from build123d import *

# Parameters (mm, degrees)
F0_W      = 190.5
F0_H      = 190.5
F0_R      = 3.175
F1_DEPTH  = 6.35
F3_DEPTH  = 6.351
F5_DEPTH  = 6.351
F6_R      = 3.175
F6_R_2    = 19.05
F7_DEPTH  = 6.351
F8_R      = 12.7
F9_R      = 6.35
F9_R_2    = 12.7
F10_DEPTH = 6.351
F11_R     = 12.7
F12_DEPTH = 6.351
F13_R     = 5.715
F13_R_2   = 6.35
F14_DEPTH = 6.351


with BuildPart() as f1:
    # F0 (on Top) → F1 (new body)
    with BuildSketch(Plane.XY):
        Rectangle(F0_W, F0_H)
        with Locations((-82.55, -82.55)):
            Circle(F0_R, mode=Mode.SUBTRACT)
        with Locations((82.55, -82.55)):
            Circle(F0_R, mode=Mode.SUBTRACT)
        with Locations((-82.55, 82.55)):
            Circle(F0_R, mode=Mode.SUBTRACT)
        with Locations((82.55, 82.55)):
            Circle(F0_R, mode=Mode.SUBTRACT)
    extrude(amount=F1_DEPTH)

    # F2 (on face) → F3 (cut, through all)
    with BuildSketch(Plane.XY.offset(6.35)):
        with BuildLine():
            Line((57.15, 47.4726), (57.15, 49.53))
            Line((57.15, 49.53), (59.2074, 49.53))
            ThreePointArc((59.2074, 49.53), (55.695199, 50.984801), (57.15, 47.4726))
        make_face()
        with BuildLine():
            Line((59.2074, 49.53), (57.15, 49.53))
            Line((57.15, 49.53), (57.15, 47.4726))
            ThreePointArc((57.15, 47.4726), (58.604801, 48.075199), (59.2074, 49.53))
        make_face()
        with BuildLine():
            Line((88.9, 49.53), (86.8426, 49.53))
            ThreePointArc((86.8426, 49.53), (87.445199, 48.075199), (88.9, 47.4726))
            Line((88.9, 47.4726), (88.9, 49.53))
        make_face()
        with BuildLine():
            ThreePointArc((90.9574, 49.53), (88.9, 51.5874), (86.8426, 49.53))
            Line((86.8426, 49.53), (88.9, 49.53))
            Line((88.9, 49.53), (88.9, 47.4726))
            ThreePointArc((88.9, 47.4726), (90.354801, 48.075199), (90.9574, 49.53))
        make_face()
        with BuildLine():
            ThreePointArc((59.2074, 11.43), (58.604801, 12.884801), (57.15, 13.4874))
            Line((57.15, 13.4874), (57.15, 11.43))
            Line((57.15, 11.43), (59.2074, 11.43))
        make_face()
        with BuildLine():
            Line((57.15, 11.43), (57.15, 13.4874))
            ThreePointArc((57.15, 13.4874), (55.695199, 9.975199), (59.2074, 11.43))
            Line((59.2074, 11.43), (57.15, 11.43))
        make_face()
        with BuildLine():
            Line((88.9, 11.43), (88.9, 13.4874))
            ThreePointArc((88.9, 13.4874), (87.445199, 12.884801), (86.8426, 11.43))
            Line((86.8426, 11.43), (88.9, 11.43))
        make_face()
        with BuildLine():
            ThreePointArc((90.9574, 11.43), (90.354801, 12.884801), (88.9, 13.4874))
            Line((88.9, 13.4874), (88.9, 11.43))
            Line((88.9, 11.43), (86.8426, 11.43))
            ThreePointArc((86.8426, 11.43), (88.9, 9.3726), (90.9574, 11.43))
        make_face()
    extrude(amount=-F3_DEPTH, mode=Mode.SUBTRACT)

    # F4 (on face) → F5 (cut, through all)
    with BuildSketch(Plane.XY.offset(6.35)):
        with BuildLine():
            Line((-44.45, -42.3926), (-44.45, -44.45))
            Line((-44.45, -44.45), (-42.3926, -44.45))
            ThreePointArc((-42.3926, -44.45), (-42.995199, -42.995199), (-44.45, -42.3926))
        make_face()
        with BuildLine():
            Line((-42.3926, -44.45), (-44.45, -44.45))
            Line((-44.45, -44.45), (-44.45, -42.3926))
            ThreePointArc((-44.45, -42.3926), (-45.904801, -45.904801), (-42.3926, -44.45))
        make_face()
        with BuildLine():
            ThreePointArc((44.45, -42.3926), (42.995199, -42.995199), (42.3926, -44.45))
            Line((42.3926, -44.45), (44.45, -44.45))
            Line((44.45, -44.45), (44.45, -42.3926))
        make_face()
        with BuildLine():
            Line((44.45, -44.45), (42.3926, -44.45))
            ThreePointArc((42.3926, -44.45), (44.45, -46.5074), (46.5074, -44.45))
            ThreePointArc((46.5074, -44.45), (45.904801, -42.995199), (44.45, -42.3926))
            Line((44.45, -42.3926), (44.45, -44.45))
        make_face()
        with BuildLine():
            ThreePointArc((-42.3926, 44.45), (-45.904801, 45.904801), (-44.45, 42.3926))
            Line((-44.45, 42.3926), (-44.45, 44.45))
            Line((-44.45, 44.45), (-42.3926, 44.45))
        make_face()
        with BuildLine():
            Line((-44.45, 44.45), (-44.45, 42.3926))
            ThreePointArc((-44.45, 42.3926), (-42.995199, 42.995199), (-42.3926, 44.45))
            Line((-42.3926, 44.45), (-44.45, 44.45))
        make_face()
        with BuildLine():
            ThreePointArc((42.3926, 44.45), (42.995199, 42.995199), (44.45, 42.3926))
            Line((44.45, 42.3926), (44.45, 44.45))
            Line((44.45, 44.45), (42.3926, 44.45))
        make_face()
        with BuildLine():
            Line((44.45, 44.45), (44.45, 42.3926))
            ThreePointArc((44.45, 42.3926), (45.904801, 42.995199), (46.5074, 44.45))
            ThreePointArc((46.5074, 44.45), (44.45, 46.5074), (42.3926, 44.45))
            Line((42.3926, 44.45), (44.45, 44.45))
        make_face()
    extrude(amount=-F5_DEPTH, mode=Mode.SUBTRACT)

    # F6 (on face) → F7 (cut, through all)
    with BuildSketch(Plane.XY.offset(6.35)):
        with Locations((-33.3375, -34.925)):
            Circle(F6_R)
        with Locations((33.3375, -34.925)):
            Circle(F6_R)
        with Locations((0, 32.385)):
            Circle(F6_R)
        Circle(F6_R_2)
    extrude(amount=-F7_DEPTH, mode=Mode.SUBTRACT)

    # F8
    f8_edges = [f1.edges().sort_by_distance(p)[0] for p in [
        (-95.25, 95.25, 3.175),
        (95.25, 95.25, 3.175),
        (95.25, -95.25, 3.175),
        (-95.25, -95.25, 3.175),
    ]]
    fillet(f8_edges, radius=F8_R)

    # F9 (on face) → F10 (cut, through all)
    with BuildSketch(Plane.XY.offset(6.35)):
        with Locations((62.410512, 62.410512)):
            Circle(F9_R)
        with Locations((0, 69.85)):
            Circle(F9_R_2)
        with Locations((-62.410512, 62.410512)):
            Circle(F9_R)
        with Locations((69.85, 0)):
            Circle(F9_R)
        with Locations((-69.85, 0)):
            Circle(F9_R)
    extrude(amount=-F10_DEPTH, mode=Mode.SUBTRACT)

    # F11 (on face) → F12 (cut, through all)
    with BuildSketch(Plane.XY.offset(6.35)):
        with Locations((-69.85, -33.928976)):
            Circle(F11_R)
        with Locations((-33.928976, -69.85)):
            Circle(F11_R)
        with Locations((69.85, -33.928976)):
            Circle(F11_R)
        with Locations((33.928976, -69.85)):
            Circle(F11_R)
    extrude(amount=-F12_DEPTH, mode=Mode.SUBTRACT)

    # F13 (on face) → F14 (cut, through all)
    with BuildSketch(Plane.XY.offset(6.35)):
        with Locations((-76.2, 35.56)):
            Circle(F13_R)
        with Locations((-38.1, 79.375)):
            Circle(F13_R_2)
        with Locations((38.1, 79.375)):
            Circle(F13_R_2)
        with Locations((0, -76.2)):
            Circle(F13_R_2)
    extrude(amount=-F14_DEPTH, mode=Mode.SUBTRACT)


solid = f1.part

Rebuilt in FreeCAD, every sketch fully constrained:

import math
import FreeCAD as App
import Part
import Sketcher
from FreeCAD import Vector
Q = App.Units.Quantity


def edges_at(feature, points):
    """Names of the edges that pass closest to the given points."""
    edges = feature.Shape.Edges
    near = lambda p: min(range(len(edges)), key=lambda i: edges[i].distToShape(Part.Vertex(*p))[0])
    return sorted({f"Edge{near(p) + 1}" for p in points})

doc = App.newDocument("Part")
body = doc.addObject("PartDesign::Body", "Body")

sketch1 = body.newObject("Sketcher::SketchObject", "Sketch")
sketch1.AttachmentSupport = (doc.getObject("XY_Plane"), [""])
sketch1.MapMode = "FlatFace"
sketch1.addGeometry([
    Part.LineSegment(Vector(-95.2, 95.2, 0), Vector(-95.2, -95.2, 0)),
    Part.LineSegment(Vector(-95.2, -95.2, 0), Vector(95.2, -95.2, 0)),
    Part.LineSegment(Vector(95.2, -95.2, 0), Vector(95.2, 95.2, 0)),
    Part.LineSegment(Vector(95.2, 95.2, 0), Vector(-95.2, 95.2, 0)),
    Part.Circle(Vector(-82.5, -82.5, 0), Vector(0, 0, 1), 3.2),
    Part.Circle(Vector(82.5, -82.5, 0), Vector(0, 0, 1), 3.2),
    Part.Circle(Vector(-82.5, 82.5, 0), Vector(0, 0, 1), 3.2),
    Part.Circle(Vector(82.5, 82.5, 0), Vector(0, 0, 1), 3.2),
], False)
sketch1.addConstraint([
    Sketcher.Constraint("Coincident", 0, 2, 1, 1),
    Sketcher.Constraint("Coincident", 1, 2, 2, 1),
    Sketcher.Constraint("Coincident", 2, 2, 3, 1),
    Sketcher.Constraint("Coincident", 3, 2, 0, 1),
    Sketcher.Constraint("Vertical", 0),
    Sketcher.Constraint("Horizontal", 1),
    Sketcher.Constraint("Vertical", 2),
    Sketcher.Constraint("Horizontal", 3),
    Sketcher.Constraint("Equal", 4, 5),
    Sketcher.Constraint("Equal", 5, 6),
    Sketcher.Constraint("Equal", 6, 7),
    Sketcher.Constraint("Symmetric", 5, 3, 6, 3, -1, 1),
    Sketcher.Constraint("Symmetric", 4, 3, 7, 3, -1, 1),
    Sketcher.Constraint("Symmetric", 0, 2, 2, 2, -1, 1),
    Sketcher.Constraint("Symmetric", 4, 3, 5, 3, -2),
    Sketcher.Constraint("Equal", 3, 0),
    Sketcher.Constraint("Diameter", 4, Q("0.25 in")),
    Sketcher.Constraint("DistanceX", 1, 1, 1, 2, Q("7.5 in")),
    Sketcher.Constraint("DistanceX", 0, 2, 5, 3, Q("7 in")),
    Sketcher.Constraint("DistanceY", 0, 2, 6, 3, Q("7 in")),
])
pad1 = body.newObject("PartDesign::Pad", "Pad")
pad1.Profile = sketch1
pad1.Length = Q("0.25 in")

sketch2 = body.newObject("Sketcher::SketchObject", "Sketch001")
sketch2.AttachmentSupport = (doc.getObject("XY_Plane"), [""])
sketch2.MapMode = "FlatFace"
sketch2.AttachmentOffset = App.Placement(Vector(0, 0, 0.25 * 25.4), App.Rotation())
sketch2.addGeometry([
    Part.ArcOfCircle(Part.Circle(Vector(57.2, 49.5, 0), Vector(0, 0, 1), 2.1), math.radians(0), math.radians(270)),
    Part.ArcOfCircle(Part.Circle(Vector(57.1, 49.5, 0), Vector(0, 0, 1), 2.1), math.radians(-90), math.radians(0)),
    Part.ArcOfCircle(Part.Circle(Vector(88.9, 49.5, 0), Vector(0, 0, 1), 2.1), math.radians(-180), math.radians(-90)),
    Part.ArcOfCircle(Part.Circle(Vector(88.9, 49.5, 0), Vector(0, 0, 1), 2.1), math.radians(-90), math.radians(0)),
    Part.ArcOfCircle(Part.Circle(Vector(88.9, 49.5, 0), Vector(0, 0, 1), 2.1), math.radians(0), math.radians(180)),
    Part.ArcOfCircle(Part.Circle(Vector(57.1, 11.4, 0), Vector(0, 0, 1), 2.1), math.radians(0), math.radians(90)),
    Part.ArcOfCircle(Part.Circle(Vector(57.2, 11.4, 0), Vector(0, 0, 1), 2.1), math.radians(90), math.radians(360)),
    Part.ArcOfCircle(Part.Circle(Vector(88.9, 11.4, 0), Vector(0, 0, 1), 2.1), math.radians(90), math.radians(180)),
    Part.ArcOfCircle(Part.Circle(Vector(88.9, 11.4, 0), Vector(0, 0, 1), 2.1), math.radians(180), math.radians(360)),
    Part.ArcOfCircle(Part.Circle(Vector(88.9, 11.4, 0), Vector(0, 0, 1), 2.1), math.radians(0), math.radians(90)),
], False)
sketch2.addConstraint([
    Sketcher.Constraint("Tangent", 0, 1, 1, 2),
    Sketcher.Constraint("Coincident", 1, 1, 0, 2),
    Sketcher.Constraint("Tangent", 2, 2, 3, 1),
    Sketcher.Constraint("Tangent", 3, 2, 4, 1),
    Sketcher.Constraint("Tangent", 4, 2, 2, 1),
    Sketcher.Constraint("Tangent", 5, 1, 6, 2),
    Sketcher.Constraint("Coincident", 6, 1, 5, 2),
    Sketcher.Constraint("Tangent", 7, 2, 8, 1),
    Sketcher.Constraint("Tangent", 8, 2, 9, 1),
    Sketcher.Constraint("Tangent", 9, 2, 7, 1),
    Sketcher.Constraint("Equal", 1, 2),
    Sketcher.Constraint("Equal", 4, 5),
    Sketcher.Constraint("Equal", 6, 7),
    Sketcher.Constraint("Horizontal", 1, 3, 2, 3),
    Sketcher.Constraint("Horizontal", 6, 3, 7, 3),
    Sketcher.Constraint("Horizontal", 4, 3, 0, 1),
    Sketcher.Constraint("Horizontal", 0, 1, 3, 2),
    Sketcher.Constraint("Horizontal", 3, 2, 4, 2),
    Sketcher.Constraint("Horizontal", 9, 3, 5, 1),
    Sketcher.Constraint("Horizontal", 5, 1, 7, 2),
    Sketcher.Constraint("Horizontal", 7, 2, 8, 2),
    Sketcher.Constraint("Vertical", 1, 3, 5, 3),
    Sketcher.Constraint("Vertical", 4, 3, 7, 3),
    Sketcher.Constraint("Vertical", 6, 3, 1, 1),
    Sketcher.Constraint("Vertical", 9, 3, 2, 2),
    Sketcher.Constraint("Vertical", 1, 1, 6, 1),
    Sketcher.Constraint("Vertical", 2, 2, 9, 2),
    Sketcher.Constraint("Radius", 0, Q("0.081 in")),
    Sketcher.Constraint("DistanceX", -1, 1, 2, 3, Q("3.5000001 in")),
    Sketcher.Constraint("DistanceY", 5, 3, 0, 3, Q("1.5000001 in")),
    Sketcher.Constraint("DistanceX", -1, 1, 0, 3, Q("2.25 in")),
    Sketcher.Constraint("DistanceY", -1, 1, 0, 3, Q("1.95 in")),
])
pocket1 = body.newObject("PartDesign::Pocket", "Pocket")
pocket1.Profile = sketch2
pocket1.Type = "ThroughAll"

sketch3 = body.newObject("Sketcher::SketchObject", "Sketch002")
sketch3.AttachmentSupport = (doc.getObject("XY_Plane"), [""])
sketch3.MapMode = "FlatFace"
sketch3.AttachmentOffset = App.Placement(Vector(0, 0, 0.25 * 25.4), App.Rotation())
sketch3.addGeometry([
    Part.ArcOfCircle(Part.Circle(Vector(-44.5, -44.5, 0), Vector(0, 0, 1), 2.1), math.radians(0), math.radians(90)),
    Part.ArcOfCircle(Part.Circle(Vector(-44.4, -44.4, 0), Vector(0, 0, 1), 2.1), math.radians(90), math.radians(360)),
    Part.ArcOfCircle(Part.Circle(Vector(44.5, -44.5, 0), Vector(0, 0, 1), 2.1), math.radians(90), math.radians(180)),
    Part.ArcOfCircle(Part.Circle(Vector(44.5, -44.5, 0), Vector(0, 0, 1), 2.1), math.radians(180), math.radians(360)),
    Part.ArcOfCircle(Part.Circle(Vector(44.4, -44.5, 0), Vector(0, 0, 1), 2.1), math.radians(0), math.radians(90)),
    Part.ArcOfCircle(Part.Circle(Vector(-44.4, 44.4, 0), Vector(0, 0, 1), 2.1), math.radians(0), math.radians(270)),
    Part.ArcOfCircle(Part.Circle(Vector(-44.5, 44.5, 0), Vector(0, 0, 1), 2.1), math.radians(-90), math.radians(0)),
    Part.ArcOfCircle(Part.Circle(Vector(44.5, 44.5, 0), Vector(0, 0, 1), 2.1), math.radians(-180), math.radians(-90)),
    Part.ArcOfCircle(Part.Circle(Vector(44.4, 44.5, 0), Vector(0, 0, 1), 2.1), math.radians(-90), math.radians(0)),
    Part.ArcOfCircle(Part.Circle(Vector(44.5, 44.5, 0), Vector(0, 0, 1), 2.1), math.radians(0), math.radians(180)),
], False)
sketch3.addConstraint([
    Sketcher.Constraint("Tangent", 0, 1, 1, 2),
    Sketcher.Constraint("Coincident", 1, 1, 0, 2),
    Sketcher.Constraint("Tangent", 2, 2, 3, 1),
    Sketcher.Constraint("Tangent", 3, 2, 4, 1),
    Sketcher.Constraint("Tangent", 4, 2, 2, 1),
    Sketcher.Constraint("Tangent", 5, 1, 6, 2),
    Sketcher.Constraint("Coincident", 6, 1, 5, 2),
    Sketcher.Constraint("Tangent", 7, 2, 8, 1),
    Sketcher.Constraint("Tangent", 8, 2, 9, 1),
    Sketcher.Constraint("Tangent", 9, 2, 7, 1),
    Sketcher.Constraint("Equal", 1, 2),
    Sketcher.Constraint("Equal", 4, 5),
    Sketcher.Constraint("Equal", 6, 7),
    Sketcher.Constraint("Symmetric", 2, 3, 5, 3, -1, 1),
    Sketcher.Constraint("Symmetric", 0, 3, 7, 3, -1, 1),
    Sketcher.Constraint("Symmetric", 0, 3, 2, 3, -2),
    Sketcher.Constraint("Horizontal", 4, 3, 0, 1),
    Sketcher.Constraint("Horizontal", 0, 1, 2, 2),
    Sketcher.Constraint("Horizontal", 2, 2, 3, 2),
    Sketcher.Constraint("Horizontal", 9, 3, 5, 1),
    Sketcher.Constraint("Horizontal", 5, 1, 8, 2),
    Sketcher.Constraint("Horizontal", 8, 2, 9, 2),
    Sketcher.Constraint("Vertical", 6, 3, 1, 1),
    Sketcher.Constraint("Vertical", 9, 3, 4, 2),
    Sketcher.Constraint("Vertical", 1, 1, 6, 1),
    Sketcher.Constraint("Vertical", 4, 2, 7, 2),
    Sketcher.Constraint("Radius", 0, Q("0.0810001 in")),
    Sketcher.Constraint("DistanceX", 1, 3, 2, 3, Q("3.5000001 in")),
    Sketcher.Constraint("DistanceY", 1, 3, 5, 3, Q("3.5 in")),
])
pocket2 = body.newObject("PartDesign::Pocket", "Pocket001")
pocket2.Profile = sketch3
pocket2.Type = "ThroughAll"

sketch4 = body.newObject("Sketcher::SketchObject", "Sketch003")
sketch4.AttachmentSupport = (doc.getObject("XY_Plane"), [""])
sketch4.MapMode = "FlatFace"
sketch4.AttachmentOffset = App.Placement(Vector(0, 0, 0.25 * 25.4), App.Rotation())
sketch4.addGeometry([
    Part.Circle(Vector(-33.3, -34.9, 0), Vector(0, 0, 1), 3.2),
    Part.Circle(Vector(33.3, -34.9, 0), Vector(0, 0, 1), 3.2),
    Part.Circle(Vector(0, 32.4, 0), Vector(0, 0, 1), 3.2),
    Part.Circle(Vector(0, 0, 0), Vector(0, 0, 1), 19.1),
], False)
sketch4.addConstraint([
    Sketcher.Constraint("Coincident", 3, 3, -1, 1),
    Sketcher.Constraint("Equal", 0, 1),
    Sketcher.Constraint("Equal", 1, 2),
    Sketcher.Constraint("Symmetric", 0, 3, 1, 3, -2),
    Sketcher.Constraint("PointOnObject", 2, 3, -2),
    Sketcher.Constraint("Diameter", 3, Q("1.5 in")),
    Sketcher.Constraint("Diameter", 0, Q("0.25 in")),
    Sketcher.Constraint("DistanceY", 0, 3, 2, 3, Q("2.65 in")),
    Sketcher.Constraint("DistanceX", 0, 3, -1, 1, Q("1.3125 in")),
    Sketcher.Constraint("DistanceY", 0, 3, -1, 1, Q("1.375 in")),
])
pocket3 = body.newObject("PartDesign::Pocket", "Pocket002")
pocket3.Profile = sketch4
pocket3.Type = "ThroughAll"
doc.recompute()

fillet = body.newObject("PartDesign::Fillet", "Fillet")
fillet.Base = (pocket3, edges_at(pocket3, [
    (-95.25, 95.25, 3.175),
    (95.25, 95.25, 3.175),
    (95.25, -95.25, 3.175),
    (-95.25, -95.25, 3.175),
]))
fillet.Radius = Q("0.5 in")

sketch5 = body.newObject("Sketcher::SketchObject", "Sketch004")
sketch5.AttachmentSupport = (doc.getObject("XY_Plane"), [""])
sketch5.MapMode = "FlatFace"
sketch5.AttachmentOffset = App.Placement(Vector(0, 0, 0.25 * 25.4), App.Rotation())
sketch5.addGeometry([
    Part.Circle(Vector(62, 62, 0), Vector(0, 0, 1), 6),
    Part.Circle(Vector(0, 70, 0), Vector(0, 0, 1), 13),
    Part.Circle(Vector(-62, 62, 0), Vector(0, 0, 1), 6),
    Part.Circle(Vector(70, 0, 0), Vector(0, 0, 1), 6),
    Part.Circle(Vector(-70, 0, 0), Vector(0, 0, 1), 6),
], False)
sketch5.addConstraint([
    Sketcher.Constraint("Equal", 0, 2),
    Sketcher.Constraint("Equal", 2, 3),
    Sketcher.Constraint("Equal", 3, 4),
    Sketcher.Constraint("Symmetric", 3, 3, 4, 3, -1, 1),
    Sketcher.Constraint("Symmetric", 0, 3, 2, 3, -2),
    Sketcher.Constraint("PointOnObject", 1, 3, -2),
    Sketcher.Constraint("PointOnObject", 3, 3, -1),
    Sketcher.Constraint("Diameter", 1, Q("1 in")),
    Sketcher.Constraint("Diameter", 0, Q("0.5 in")),
    Sketcher.Constraint("DistanceX", 4, 3, 3, 3, Q("5.5 in")),
    Sketcher.Constraint("DistanceY", -1, 1, 1, 3, Q("2.75 in")),
    Sketcher.Constraint("DistanceX", -1, 1, 0, 3, Q("62.410512 mm")),
    Sketcher.Constraint("DistanceY", -1, 1, 0, 3, Q("62.410512 mm")),
])
pocket4 = body.newObject("PartDesign::Pocket", "Pocket003")
pocket4.Profile = sketch5
pocket4.Type = "ThroughAll"

sketch6 = body.newObject("Sketcher::SketchObject", "Sketch005")
sketch6.AttachmentSupport = (doc.getObject("XY_Plane"), [""])
sketch6.MapMode = "FlatFace"
sketch6.AttachmentOffset = App.Placement(Vector(0, 0, 0.25 * 25.4), App.Rotation())
sketch6.addGeometry([
    Part.Circle(Vector(-70, -34, 0), Vector(0, 0, 1), 13),
    Part.Circle(Vector(-34, -70, 0), Vector(0, 0, 1), 13),
    Part.Circle(Vector(70, -34, 0), Vector(0, 0, 1), 13),
    Part.Circle(Vector(34, -70, 0), Vector(0, 0, 1), 13),
], False)
sketch6.addConstraint([
    Sketcher.Constraint("Equal", 0, 1),
    Sketcher.Constraint("Equal", 1, 2),
    Sketcher.Constraint("Equal", 2, 3),
    Sketcher.Constraint("Symmetric", 0, 3, 2, 3, -2),
    Sketcher.Constraint("Symmetric", 1, 3, 3, 3, -2),
    Sketcher.Constraint("Diameter", 0, Q("1 in")),
    Sketcher.Constraint("DistanceX", 0, 3, 2, 3, Q("5.5 in")),
    Sketcher.Constraint("DistanceY", 1, 3, -1, 1, Q("2.75 in")),
    Sketcher.Constraint("DistanceX", 1, 3, 3, 3, Q("67.857952 mm")),
    Sketcher.Constraint("DistanceY", 0, 3, -1, 1, Q("33.928976 mm")),
])
pocket5 = body.newObject("PartDesign::Pocket", "Pocket004")
pocket5.Profile = sketch6
pocket5.Type = "ThroughAll"

sketch7 = body.newObject("Sketcher::SketchObject", "Sketch006")
sketch7.AttachmentSupport = (doc.getObject("XY_Plane"), [""])
sketch7.MapMode = "FlatFace"
sketch7.AttachmentOffset = App.Placement(Vector(0, 0, 0.25 * 25.4), App.Rotation())
sketch7.addGeometry([
    Part.Circle(Vector(-76, 36, 0), Vector(0, 0, 1), 6),
    Part.Circle(Vector(-38, 79, 0), Vector(0, 0, 1), 6),
    Part.Circle(Vector(38, 79, 0), Vector(0, 0, 1), 6),
    Part.Circle(Vector(0, -76, 0), Vector(0, 0, 1), 6),
], False)
sketch7.addConstraint([
    Sketcher.Constraint("Equal", 1, 2),
    Sketcher.Constraint("Equal", 2, 3),
    Sketcher.Constraint("Symmetric", 1, 3, 2, 3, -2),
    Sketcher.Constraint("PointOnObject", 3, 3, -2),
    Sketcher.Constraint("Diameter", 1, Q("0.5 in")),
    Sketcher.Constraint("Diameter", 0, Q("0.45 in")),
    Sketcher.Constraint("DistanceX", 0, 3, -1, 1, Q("3 in")),
    Sketcher.Constraint("DistanceY", 3, 3, -1, 1, Q("3 in")),
    Sketcher.Constraint("DistanceX", 1, 3, 2, 3, Q("3 in")),
    Sketcher.Constraint("DistanceY", -1, 1, 0, 3, Q("1.4 in")),
    Sketcher.Constraint("DistanceY", -1, 1, 1, 3, Q("3.125 in")),
])
pocket6 = body.newObject("PartDesign::Pocket", "Pocket005")
pocket6.Profile = sketch7
pocket6.Type = "ThroughAll"

doc.recompute()
